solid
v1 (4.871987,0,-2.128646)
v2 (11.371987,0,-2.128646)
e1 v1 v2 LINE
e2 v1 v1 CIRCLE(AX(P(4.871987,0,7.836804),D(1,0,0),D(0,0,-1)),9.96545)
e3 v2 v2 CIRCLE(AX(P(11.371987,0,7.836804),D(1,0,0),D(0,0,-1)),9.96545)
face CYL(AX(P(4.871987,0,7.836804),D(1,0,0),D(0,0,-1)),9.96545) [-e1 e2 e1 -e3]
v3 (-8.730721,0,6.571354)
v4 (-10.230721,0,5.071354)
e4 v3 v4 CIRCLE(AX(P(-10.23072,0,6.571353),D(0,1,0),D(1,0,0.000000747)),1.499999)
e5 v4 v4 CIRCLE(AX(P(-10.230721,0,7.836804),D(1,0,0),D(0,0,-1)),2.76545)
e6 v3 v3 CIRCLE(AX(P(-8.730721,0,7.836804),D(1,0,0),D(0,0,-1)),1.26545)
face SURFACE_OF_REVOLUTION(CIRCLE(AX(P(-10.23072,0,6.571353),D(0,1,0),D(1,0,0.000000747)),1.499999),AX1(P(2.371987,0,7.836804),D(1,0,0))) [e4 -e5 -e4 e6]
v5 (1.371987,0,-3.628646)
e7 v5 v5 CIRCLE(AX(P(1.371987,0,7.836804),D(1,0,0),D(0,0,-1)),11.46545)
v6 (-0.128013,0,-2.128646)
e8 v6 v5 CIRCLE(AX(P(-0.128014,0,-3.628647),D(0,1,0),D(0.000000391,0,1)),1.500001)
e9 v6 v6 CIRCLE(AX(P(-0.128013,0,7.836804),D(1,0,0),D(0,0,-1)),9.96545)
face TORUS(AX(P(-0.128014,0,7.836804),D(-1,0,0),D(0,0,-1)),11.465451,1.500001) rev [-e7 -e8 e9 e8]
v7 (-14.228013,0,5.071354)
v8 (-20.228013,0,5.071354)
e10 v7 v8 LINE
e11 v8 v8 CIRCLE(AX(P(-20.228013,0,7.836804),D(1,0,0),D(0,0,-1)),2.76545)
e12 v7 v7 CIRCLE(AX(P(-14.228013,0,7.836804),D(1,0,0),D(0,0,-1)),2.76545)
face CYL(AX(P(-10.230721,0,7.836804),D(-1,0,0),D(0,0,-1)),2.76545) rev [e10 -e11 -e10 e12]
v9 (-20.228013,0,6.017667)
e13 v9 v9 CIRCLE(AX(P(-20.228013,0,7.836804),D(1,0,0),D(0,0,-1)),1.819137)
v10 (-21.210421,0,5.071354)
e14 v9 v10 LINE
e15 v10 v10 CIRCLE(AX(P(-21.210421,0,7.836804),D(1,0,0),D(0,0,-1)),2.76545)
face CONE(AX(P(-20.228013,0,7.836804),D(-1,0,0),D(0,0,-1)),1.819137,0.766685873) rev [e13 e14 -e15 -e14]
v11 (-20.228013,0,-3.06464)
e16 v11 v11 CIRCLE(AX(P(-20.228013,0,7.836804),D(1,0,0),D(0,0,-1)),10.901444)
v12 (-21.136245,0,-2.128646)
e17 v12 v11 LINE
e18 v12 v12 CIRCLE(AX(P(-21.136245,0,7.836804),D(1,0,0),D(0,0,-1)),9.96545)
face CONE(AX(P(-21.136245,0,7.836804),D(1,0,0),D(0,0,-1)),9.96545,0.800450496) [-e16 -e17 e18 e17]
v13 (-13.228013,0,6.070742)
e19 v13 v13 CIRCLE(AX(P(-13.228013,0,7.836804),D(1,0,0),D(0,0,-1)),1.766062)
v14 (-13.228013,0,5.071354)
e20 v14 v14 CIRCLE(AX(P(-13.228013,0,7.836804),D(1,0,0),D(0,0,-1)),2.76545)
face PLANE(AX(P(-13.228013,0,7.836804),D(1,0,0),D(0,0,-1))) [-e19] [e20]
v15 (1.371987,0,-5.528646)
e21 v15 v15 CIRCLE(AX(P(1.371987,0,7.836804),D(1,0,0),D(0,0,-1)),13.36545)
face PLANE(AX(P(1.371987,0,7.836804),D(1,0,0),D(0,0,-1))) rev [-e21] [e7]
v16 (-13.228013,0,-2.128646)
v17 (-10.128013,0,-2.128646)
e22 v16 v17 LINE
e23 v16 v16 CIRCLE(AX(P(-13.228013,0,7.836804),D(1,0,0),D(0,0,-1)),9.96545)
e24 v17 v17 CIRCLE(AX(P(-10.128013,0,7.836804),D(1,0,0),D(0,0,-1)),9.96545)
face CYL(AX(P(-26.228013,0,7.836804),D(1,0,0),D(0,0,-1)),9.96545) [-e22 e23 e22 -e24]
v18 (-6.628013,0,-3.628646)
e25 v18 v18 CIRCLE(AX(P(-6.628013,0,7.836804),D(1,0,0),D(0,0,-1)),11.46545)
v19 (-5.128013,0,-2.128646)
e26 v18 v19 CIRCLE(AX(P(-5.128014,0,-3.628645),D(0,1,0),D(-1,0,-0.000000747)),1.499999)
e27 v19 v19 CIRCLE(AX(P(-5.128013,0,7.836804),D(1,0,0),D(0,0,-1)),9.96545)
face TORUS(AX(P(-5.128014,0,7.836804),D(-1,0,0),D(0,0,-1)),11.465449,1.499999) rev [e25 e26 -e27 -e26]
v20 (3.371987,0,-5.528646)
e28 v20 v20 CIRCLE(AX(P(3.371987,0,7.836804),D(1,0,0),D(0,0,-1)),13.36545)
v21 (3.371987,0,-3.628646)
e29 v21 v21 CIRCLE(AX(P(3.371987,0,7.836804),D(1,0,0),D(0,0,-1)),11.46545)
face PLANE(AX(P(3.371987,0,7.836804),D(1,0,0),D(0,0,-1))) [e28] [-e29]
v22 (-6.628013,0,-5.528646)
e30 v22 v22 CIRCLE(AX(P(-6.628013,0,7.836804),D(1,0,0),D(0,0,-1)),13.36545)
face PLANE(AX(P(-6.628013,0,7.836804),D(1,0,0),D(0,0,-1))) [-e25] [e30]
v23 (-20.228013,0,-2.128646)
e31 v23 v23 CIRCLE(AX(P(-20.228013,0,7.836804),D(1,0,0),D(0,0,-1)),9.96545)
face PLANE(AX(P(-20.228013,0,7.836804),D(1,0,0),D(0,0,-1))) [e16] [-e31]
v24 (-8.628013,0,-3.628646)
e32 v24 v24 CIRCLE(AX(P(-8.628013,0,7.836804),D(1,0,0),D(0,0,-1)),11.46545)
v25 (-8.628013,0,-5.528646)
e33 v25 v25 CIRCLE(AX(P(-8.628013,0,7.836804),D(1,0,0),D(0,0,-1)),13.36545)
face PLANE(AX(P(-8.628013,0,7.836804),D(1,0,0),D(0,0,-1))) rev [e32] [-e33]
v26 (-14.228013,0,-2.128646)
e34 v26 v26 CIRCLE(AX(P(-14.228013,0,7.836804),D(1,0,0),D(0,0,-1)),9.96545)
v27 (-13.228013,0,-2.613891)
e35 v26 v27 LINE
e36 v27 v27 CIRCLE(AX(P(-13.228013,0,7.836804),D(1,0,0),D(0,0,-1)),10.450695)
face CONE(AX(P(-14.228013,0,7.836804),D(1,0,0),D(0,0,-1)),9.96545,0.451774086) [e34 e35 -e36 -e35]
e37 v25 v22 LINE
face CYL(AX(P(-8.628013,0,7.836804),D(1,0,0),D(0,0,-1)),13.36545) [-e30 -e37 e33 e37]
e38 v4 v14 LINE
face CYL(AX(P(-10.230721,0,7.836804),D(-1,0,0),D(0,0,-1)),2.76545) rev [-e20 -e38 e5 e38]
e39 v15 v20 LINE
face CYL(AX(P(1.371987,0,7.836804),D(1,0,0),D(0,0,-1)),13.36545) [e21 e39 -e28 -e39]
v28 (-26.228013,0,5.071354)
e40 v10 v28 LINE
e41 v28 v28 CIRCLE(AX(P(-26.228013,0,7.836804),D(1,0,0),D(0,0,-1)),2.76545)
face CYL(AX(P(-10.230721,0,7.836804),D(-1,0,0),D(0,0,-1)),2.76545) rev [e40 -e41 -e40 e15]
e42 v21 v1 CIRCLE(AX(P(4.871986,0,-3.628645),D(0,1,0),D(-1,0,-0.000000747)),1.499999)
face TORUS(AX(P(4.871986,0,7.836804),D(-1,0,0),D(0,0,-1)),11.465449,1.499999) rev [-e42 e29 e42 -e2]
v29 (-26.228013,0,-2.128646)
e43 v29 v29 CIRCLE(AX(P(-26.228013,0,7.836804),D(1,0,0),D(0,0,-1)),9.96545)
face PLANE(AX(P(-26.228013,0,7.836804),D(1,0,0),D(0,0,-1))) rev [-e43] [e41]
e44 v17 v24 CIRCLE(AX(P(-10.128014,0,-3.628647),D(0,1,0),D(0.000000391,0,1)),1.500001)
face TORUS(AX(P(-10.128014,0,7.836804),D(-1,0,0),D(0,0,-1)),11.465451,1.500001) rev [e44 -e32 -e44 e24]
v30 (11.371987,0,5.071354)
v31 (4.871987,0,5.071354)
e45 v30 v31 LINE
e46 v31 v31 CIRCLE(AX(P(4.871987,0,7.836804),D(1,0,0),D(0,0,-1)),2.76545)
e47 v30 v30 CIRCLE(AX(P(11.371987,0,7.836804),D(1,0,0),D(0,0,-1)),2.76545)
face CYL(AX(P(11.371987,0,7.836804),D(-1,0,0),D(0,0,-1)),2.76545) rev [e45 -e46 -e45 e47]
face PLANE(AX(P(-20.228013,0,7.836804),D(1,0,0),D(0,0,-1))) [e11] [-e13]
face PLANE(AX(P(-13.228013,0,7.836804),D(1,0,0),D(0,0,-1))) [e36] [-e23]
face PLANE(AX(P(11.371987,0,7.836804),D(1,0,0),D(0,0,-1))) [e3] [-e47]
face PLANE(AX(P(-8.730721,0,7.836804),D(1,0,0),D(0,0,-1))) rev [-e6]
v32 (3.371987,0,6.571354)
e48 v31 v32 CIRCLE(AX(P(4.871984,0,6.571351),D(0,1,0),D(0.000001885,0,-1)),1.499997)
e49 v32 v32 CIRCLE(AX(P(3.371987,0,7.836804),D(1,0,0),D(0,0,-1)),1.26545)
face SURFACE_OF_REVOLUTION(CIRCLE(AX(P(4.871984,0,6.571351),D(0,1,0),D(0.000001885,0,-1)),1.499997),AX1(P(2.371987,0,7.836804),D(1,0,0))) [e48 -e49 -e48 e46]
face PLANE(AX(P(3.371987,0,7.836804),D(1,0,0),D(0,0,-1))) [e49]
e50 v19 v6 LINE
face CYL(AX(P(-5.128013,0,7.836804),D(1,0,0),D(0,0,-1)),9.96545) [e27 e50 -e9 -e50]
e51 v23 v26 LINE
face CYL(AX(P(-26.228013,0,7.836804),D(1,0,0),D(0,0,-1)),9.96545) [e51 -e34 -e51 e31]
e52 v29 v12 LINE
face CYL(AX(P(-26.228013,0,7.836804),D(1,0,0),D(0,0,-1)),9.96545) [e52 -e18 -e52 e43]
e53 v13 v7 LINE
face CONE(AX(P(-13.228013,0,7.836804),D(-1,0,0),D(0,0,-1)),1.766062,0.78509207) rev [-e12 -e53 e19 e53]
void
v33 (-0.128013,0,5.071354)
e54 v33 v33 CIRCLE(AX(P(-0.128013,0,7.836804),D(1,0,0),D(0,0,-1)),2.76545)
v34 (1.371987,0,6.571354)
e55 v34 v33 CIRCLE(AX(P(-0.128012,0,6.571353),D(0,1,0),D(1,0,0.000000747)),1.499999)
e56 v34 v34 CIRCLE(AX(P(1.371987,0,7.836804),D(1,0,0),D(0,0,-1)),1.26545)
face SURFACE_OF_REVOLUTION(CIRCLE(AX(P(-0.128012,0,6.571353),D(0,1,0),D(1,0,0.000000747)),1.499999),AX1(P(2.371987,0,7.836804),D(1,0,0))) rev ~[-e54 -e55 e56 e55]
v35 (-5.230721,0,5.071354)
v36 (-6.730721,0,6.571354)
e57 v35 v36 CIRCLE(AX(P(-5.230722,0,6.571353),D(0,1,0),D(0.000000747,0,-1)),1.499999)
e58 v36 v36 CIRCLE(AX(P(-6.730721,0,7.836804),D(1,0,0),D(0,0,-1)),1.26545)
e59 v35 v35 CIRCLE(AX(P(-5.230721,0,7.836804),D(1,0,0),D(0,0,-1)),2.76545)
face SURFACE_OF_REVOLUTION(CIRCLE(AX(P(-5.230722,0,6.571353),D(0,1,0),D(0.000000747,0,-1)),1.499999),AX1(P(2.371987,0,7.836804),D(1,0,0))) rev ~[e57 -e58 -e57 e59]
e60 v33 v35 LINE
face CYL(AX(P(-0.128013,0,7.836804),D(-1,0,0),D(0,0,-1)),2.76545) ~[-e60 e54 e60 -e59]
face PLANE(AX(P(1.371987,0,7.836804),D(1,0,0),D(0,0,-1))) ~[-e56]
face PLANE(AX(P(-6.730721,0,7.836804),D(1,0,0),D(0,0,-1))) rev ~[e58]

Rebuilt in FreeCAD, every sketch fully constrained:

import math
import FreeCAD as App
import Part
import Sketcher

V = App.Vector
Q = App.Units.Quantity

doc = App.newDocument("Part")
params = doc.addObject("Spreadsheet::Sheet", "Params")
for row, (alias, value) in enumerate([
    ("sketch1_radius", "1.499999 mm"),
    ("sketch1_width", "2 mm"),
    ("sketch1_width2", "6 mm"),
    ("sketch1_width3", "5 mm"),
    ("sketch1_width4", "6.5 mm"),
    ("revolution_angle", "360 deg"),
], start=1):
    params.set(f"A{row}", alias)
    params.set(f"B{row}", "=" + value)
    params.setAlias(f"B{row}", alias)

body = doc.addObject("PartDesign::Body", "Body")

# Sketch on XZ plane
sketch1 = body.newObject("Sketcher::SketchObject", "Sketch")
sketch1.AttachmentSupport = (doc.getObject("XZ_Plane"), [""])
sketch1.MapMode = "FlatFace"
sketch1.addGeometry([
    Part.LineSegment(V(3.37, -5.53, 0), V(3.37, -3.63, 0)),  # 0
    Part.ArcOfCircle(Part.Circle(V(4.87, -3.63, 0), V(0, 0, 1), 1.5), math.radians(90), math.radians(180)),  # 1
    Part.LineSegment(V(4.87, -2.13, 0), V(11.37, -2.13, 0)),  # 2
    Part.LineSegment(V(11.37, -2.13, 0), V(11.37, 5.07, 0)),  # 3
    Part.LineSegment(V(11.37, 5.07, 0), V(4.87, 5.07, 0)),  # 4
    Part.ArcOfCircle(Part.Circle(V(4.87, 6.57, 0), V(0, 0, 1), 1.5), math.radians(180), math.radians(270)),  # 5
    Part.LineSegment(V(3.37, 6.57, 0), V(3.37, 7.84, 0)),  # 6
    Part.LineSegment(V(3.37, 7.84, 0), V(1.37, 7.84, 0)),  # 7
    Part.LineSegment(V(1.37, 7.84, 0), V(1.37, 6.57, 0)),  # 8
    Part.ArcOfCircle(Part.Circle(V(-0.13, 6.57, 0), V(0, 0, 1), 1.5), math.radians(-90), math.radians(0)),  # 9
    Part.LineSegment(V(-0.13, 5.07, 0), V(-5.23, 5.07, 0)),  # 10
    Part.ArcOfCircle(Part.Circle(V(-5.23, 6.57, 0), V(0, 0, 1), 1.5), math.radians(180), math.radians(270)),  # 11
    Part.LineSegment(V(-6.73, 6.57, 0), V(-6.73, 7.84, 0)),  # 12
    Part.LineSegment(V(-6.73, 7.84, 0), V(-8.73, 7.84, 0)),  # 13
    Part.LineSegment(V(-8.73, 7.84, 0), V(-8.73, 6.57, 0)),  # 14
    Part.ArcOfCircle(Part.Circle(V(-10.23, 6.57, 0), V(0, 0, 1), 1.5), math.radians(-90), math.radians(0)),  # 15
    Part.LineSegment(V(-10.23, 5.07, 0), V(-13.23, 5.07, 0)),  # 16
    Part.LineSegment(V(-13.23, 5.07, 0), V(-13.23, 6.07, 0)),  # 17
    Part.LineSegment(V(-13.23, 6.07, 0), V(-14.23, 5.07, 0)),  # 18
    Part.LineSegment(V(-14.23, 5.07, 0), V(-20.23, 5.07, 0)),  # 19
    Part.LineSegment(V(-20.23, 5.07, 0), V(-20.23, 6.02, 0)),  # 20
    Part.LineSegment(V(-20.23, 6.02, 0), V(-21.21, 5.07, 0)),  # 21
    Part.LineSegment(V(-21.21, 5.07, 0), V(-26.23, 5.07, 0)),  # 22
    Part.LineSegment(V(-26.23, 5.07, 0), V(-26.23, -2.13, 0)),  # 23
    Part.LineSegment(V(-26.23, -2.13, 0), V(-21.14, -2.13, 0)),  # 24
    Part.LineSegment(V(-21.14, -2.13, 0), V(-20.23, -3.06, 0)),  # 25
    Part.LineSegment(V(-20.23, -3.06, 0), V(-20.23, -2.13, 0)),  # 26
    Part.LineSegment(V(-20.23, -2.13, 0), V(-14.23, -2.13, 0)),  # 27
    Part.LineSegment(V(-14.23, -2.13, 0), V(-13.23, -2.61, 0)),  # 28
    Part.LineSegment(V(-13.23, -2.61, 0), V(-13.23, -2.13, 0)),  # 29
    Part.LineSegment(V(-13.23, -2.13, 0), V(-10.13, -2.13, 0)),  # 30
    Part.ArcOfCircle(Part.Circle(V(-10.13, -3.63, 0), V(0, 0, 1), 1.5), math.radians(0), math.radians(90)),  # 31
    Part.LineSegment(V(-8.63, -3.63, 0), V(-8.63, -5.53, 0)),  # 32
    Part.LineSegment(V(-8.63, -5.53, 0), V(-6.63, -5.53, 0)),  # 33
    Part.LineSegment(V(-6.63, -5.53, 0), V(-6.63, -3.63, 0)),  # 34
    Part.ArcOfCircle(Part.Circle(V(-5.13, -3.63, 0), V(0, 0, 1), 1.5), math.radians(90), math.radians(180)),  # 35
    Part.LineSegment(V(-5.13, -2.13, 0), V(-0.13, -2.13, 0)),  # 36
    Part.ArcOfCircle(Part.Circle(V(-0.13, -3.63, 0), V(0, 0, 1), 1.5), math.radians(0), math.radians(90)),  # 37
    Part.LineSegment(V(1.37, -3.63, 0), V(1.37, -5.53, 0)),  # 38
    Part.LineSegment(V(1.37, -5.53, 0), V(3.37, -5.53, 0)),  # 39
], False)
sketch1.addGeometry(Part.LineSegment(V(-26.23, 7.84, 0), V(11.37, 7.84, 0)), True)  # axis
sketch1.addConstraint([
    Sketcher.Constraint("Tangent", 0, 2, 1, 2),
    Sketcher.Constraint("Tangent", 1, 1, 2, 1),
    Sketcher.Constraint("Coincident", 2, 2, 3, 1),
    Sketcher.Constraint("Coincident", 3, 2, 4, 1),
    Sketcher.Constraint("Tangent", 4, 2, 5, 2),
    Sketcher.Constraint("Tangent", 5, 1, 6, 1),
    Sketcher.Constraint("Coincident", 6, 2, 7, 1),
    Sketcher.Constraint("Coincident", 7, 2, 8, 1),
    Sketcher.Constraint("Tangent", 8, 2, 9, 2),
    Sketcher.Constraint("Tangent", 9, 1, 10, 1),
    Sketcher.Constraint("Tangent", 10, 2, 11, 2),
    Sketcher.Constraint("Tangent", 11, 1, 12, 1),
    Sketcher.Constraint("Coincident", 12, 2, 13, 1),
    Sketcher.Constraint("Coincident", 13, 2, 14, 1),
    Sketcher.Constraint("Tangent", 14, 2, 15, 2),
    Sketcher.Constraint("Tangent", 15, 1, 16, 1),
    Sketcher.Constraint("Coincident", 16, 2, 17, 1),
    Sketcher.Constraint("Coincident", 17, 2, 18, 1),
    Sketcher.Constraint("Coincident", 18, 2, 19, 1),
    Sketcher.Constraint("Coincident", 19, 2, 20, 1),
    Sketcher.Constraint("Coincident", 20, 2, 21, 1),
    Sketcher.Constraint("Coincident", 21, 2, 22, 1),
    Sketcher.Constraint("Coincident", 22, 2, 23, 1),
    Sketcher.Constraint("Coincident", 23, 2, 24, 1),
    Sketcher.Constraint("Coincident", 24, 2, 25, 1),
    Sketcher.Constraint("Coincident", 25, 2, 26, 1),
    Sketcher.Constraint("Coincident", 26, 2, 27, 1),
    Sketcher.Constraint("Coincident", 27, 2, 28, 1),
    Sketcher.Constraint("Coincident", 28, 2, 29, 1),
    Sketcher.Constraint("Coincident", 29, 2, 30, 1),
    Sketcher.Constraint("Tangent", 30, 2, 31, 2),
    Sketcher.Constraint("Tangent", 31, 1, 32, 1),
    Sketcher.Constraint("Coincident", 32, 2, 33, 1),
    Sketcher.Constraint("Coincident", 33, 2, 34, 1),
    Sketcher.Constraint("Tangent", 34, 2, 35, 2),
    Sketcher.Constraint("Tangent", 35, 1, 36, 1),
    Sketcher.Constraint("Tangent", 36, 2, 37, 2),
    Sketcher.Constraint("Tangent", 37, 1, 38, 1),
    Sketcher.Constraint("Coincident", 38, 2, 39, 1),
    Sketcher.Constraint("Coincident", 39, 2, 0, 1),
    Sketcher.Constraint("Vertical", 0),
    Sketcher.Constraint("Horizontal", 2),
    Sketcher.Constraint("Vertical", 3),
    Sketcher.Constraint("Horizontal", 4),
    Sketcher.Constraint("Vertical", 6),
    Sketcher.Constraint("Horizontal", 7),
    Sketcher.Constraint("Vertical", 8),
    Sketcher.Constraint("Horizontal", 10),
    Sketcher.Constraint("Vertical", 12),
    Sketcher.Constraint("Horizontal", 13),
    Sketcher.Constraint("Vertical", 14),
    Sketcher.Constraint("Horizontal", 16),
    Sketcher.Constraint("Vertical", 17),
    Sketcher.Constraint("Horizontal", 19),
    Sketcher.Constraint("Vertical", 20),
    Sketcher.Constraint("Horizontal", 22),
    Sketcher.Constraint("Vertical", 23),
    Sketcher.Constraint("Horizontal", 24),
    Sketcher.Constraint("Vertical", 26),
    Sketcher.Constraint("Horizontal", 27),
    Sketcher.Constraint("Vertical", 29),
    Sketcher.Constraint("Horizontal", 30),
    Sketcher.Constraint("Vertical", 32),
    Sketcher.Constraint("Horizontal", 33),
    Sketcher.Constraint("Vertical", 34),
    Sketcher.Constraint("Horizontal", 36),
    Sketcher.Constraint("Vertical", 38),
    Sketcher.Constraint("Horizontal", 39),
    Sketcher.Constraint("Horizontal", 40),
    Sketcher.Constraint("Equal", 1, 5),
    Sketcher.Constraint("Equal", 5, 9),
    Sketcher.Constraint("Equal", 9, 11),
    Sketcher.Constraint("Equal", 11, 15),
    Sketcher.Constraint("Equal", 15, 31),
    Sketcher.Constraint("Equal", 31, 35),
    Sketcher.Constraint("Equal", 35, 37),
    Sketcher.Constraint("Horizontal", 5, 3, 9, 3),
    Sketcher.Constraint("Horizontal", 11, 3, 15, 3),
    Sketcher.Constraint("Horizontal", 1, 3, 31, 3),
    Sketcher.Constraint("Horizontal", 31, 3, 35, 3),
    Sketcher.Constraint("Horizontal", 7, 2, 12, 2),
    Sketcher.Constraint("Horizontal", 16, 2, 18, 2),
    Sketcher.Constraint("Horizontal", 19, 2, 21, 2),
    Sketcher.Constraint("Horizontal", 2, 2, 23, 2),
    Sketcher.Constraint("Horizontal", 24, 2, 26, 2),
    Sketcher.Constraint("Horizontal", 33, 2, 38, 2),
    Sketcher.Constraint("Horizontal", 13, 2, 40, 1),
    Sketcher.Constraint("Vertical", 1, 3, 5, 3),
    Sketcher.Constraint("Vertical", 9, 3, 37, 3),
    Sketcher.Constraint("Vertical", 20, 2, 25, 2),
    Sketcher.Constraint("Vertical", 18, 2, 27, 2),
    Sketcher.Constraint("Vertical", 17, 2, 28, 2),
    Sketcher.Constraint("Vertical", 23, 2, 40, 1),
    Sketcher.Constraint("Vertical", 3, 2, 40, 2),
    Sketcher.Constraint("Equal", 7, 13),
    Sketcher.Constraint("Equal", 13, 33),
    Sketcher.Constraint("Radius", 1, Q("1.499999 mm")),
    Sketcher.Constraint("DistanceX", 7, 2, 7, 1, Q("2 mm")),
    Sketcher.Constraint("DistanceX", 19, 2, 19, 1, Q("6 mm")),
    Sketcher.Constraint("DistanceX", 36, 1, 36, 2, Q("5 mm")),
    Sketcher.Constraint("DistanceX", 2, 1, 2, 2, Q("6.5 mm")),
    Sketcher.Constraint("DistanceX", 30, 1, 30, 2, Q("3.1 mm")),
    Sketcher.Constraint("DistanceX", 40, 1, 40, 2, Q("37.6 mm")),
    Sketcher.Constraint("DistanceY", 0, 1, 0, 2, Q("1.9 mm")),
    Sketcher.Constraint("DistanceY", 3, 1, 3, 2, Q("7.2 mm")),
    Sketcher.Constraint("DistanceX", 18, 2, 16, 2, Q("1 mm")),
    Sketcher.Constraint("DistanceX", 16, 2, 16, 1, Q("2.997292 mm")),
    Sketcher.Constraint("DistanceX", 24, 1, 24, 2, Q("5.091768 mm")),
    Sketcher.Constraint("DistanceY", 6, 1, 6, 2, Q("1.26545 mm")),
    Sketcher.Constraint("Distance", 18, Q("1.413781 mm")),
    Sketcher.Constraint("Distance", 21, Q("1.364051 mm")),
    Sketcher.Constraint("DistanceX", 22, 2, 22, 1, Q("5.017592 mm")),
    Sketcher.Constraint("DistanceY", 26, 1, 26, 2, Q("0.935994 mm")),
    Sketcher.Constraint("DistanceY", 29, 1, 29, 2, Q("0.485245 mm")),
    Sketcher.Constraint("DistanceY", -1, 1, 5, 3, Q("6.571351 mm")),
    Sketcher.Constraint("DistanceX", 9, 3, -1, 1, Q("0.128012 mm")),
])
sketch1.setExpression("Constraints[96]", "Params.sketch1_radius")
sketch1.setExpression("Constraints[97]", "Params.sketch1_width")
sketch1.setExpression("Constraints[98]", "Params.sketch1_width2")
sketch1.setExpression("Constraints[99]", "Params.sketch1_width3")
sketch1.setExpression("Constraints[100]", "Params.sketch1_width4")
revolution = body.newObject("PartDesign::Revolution", "Revolution")
revolution.Profile = sketch1
revolution.ReferenceAxis = (sketch1, ["Axis0"])
revolution.setExpression("Angle", "Params.revolution_angle")

doc.recompute()
